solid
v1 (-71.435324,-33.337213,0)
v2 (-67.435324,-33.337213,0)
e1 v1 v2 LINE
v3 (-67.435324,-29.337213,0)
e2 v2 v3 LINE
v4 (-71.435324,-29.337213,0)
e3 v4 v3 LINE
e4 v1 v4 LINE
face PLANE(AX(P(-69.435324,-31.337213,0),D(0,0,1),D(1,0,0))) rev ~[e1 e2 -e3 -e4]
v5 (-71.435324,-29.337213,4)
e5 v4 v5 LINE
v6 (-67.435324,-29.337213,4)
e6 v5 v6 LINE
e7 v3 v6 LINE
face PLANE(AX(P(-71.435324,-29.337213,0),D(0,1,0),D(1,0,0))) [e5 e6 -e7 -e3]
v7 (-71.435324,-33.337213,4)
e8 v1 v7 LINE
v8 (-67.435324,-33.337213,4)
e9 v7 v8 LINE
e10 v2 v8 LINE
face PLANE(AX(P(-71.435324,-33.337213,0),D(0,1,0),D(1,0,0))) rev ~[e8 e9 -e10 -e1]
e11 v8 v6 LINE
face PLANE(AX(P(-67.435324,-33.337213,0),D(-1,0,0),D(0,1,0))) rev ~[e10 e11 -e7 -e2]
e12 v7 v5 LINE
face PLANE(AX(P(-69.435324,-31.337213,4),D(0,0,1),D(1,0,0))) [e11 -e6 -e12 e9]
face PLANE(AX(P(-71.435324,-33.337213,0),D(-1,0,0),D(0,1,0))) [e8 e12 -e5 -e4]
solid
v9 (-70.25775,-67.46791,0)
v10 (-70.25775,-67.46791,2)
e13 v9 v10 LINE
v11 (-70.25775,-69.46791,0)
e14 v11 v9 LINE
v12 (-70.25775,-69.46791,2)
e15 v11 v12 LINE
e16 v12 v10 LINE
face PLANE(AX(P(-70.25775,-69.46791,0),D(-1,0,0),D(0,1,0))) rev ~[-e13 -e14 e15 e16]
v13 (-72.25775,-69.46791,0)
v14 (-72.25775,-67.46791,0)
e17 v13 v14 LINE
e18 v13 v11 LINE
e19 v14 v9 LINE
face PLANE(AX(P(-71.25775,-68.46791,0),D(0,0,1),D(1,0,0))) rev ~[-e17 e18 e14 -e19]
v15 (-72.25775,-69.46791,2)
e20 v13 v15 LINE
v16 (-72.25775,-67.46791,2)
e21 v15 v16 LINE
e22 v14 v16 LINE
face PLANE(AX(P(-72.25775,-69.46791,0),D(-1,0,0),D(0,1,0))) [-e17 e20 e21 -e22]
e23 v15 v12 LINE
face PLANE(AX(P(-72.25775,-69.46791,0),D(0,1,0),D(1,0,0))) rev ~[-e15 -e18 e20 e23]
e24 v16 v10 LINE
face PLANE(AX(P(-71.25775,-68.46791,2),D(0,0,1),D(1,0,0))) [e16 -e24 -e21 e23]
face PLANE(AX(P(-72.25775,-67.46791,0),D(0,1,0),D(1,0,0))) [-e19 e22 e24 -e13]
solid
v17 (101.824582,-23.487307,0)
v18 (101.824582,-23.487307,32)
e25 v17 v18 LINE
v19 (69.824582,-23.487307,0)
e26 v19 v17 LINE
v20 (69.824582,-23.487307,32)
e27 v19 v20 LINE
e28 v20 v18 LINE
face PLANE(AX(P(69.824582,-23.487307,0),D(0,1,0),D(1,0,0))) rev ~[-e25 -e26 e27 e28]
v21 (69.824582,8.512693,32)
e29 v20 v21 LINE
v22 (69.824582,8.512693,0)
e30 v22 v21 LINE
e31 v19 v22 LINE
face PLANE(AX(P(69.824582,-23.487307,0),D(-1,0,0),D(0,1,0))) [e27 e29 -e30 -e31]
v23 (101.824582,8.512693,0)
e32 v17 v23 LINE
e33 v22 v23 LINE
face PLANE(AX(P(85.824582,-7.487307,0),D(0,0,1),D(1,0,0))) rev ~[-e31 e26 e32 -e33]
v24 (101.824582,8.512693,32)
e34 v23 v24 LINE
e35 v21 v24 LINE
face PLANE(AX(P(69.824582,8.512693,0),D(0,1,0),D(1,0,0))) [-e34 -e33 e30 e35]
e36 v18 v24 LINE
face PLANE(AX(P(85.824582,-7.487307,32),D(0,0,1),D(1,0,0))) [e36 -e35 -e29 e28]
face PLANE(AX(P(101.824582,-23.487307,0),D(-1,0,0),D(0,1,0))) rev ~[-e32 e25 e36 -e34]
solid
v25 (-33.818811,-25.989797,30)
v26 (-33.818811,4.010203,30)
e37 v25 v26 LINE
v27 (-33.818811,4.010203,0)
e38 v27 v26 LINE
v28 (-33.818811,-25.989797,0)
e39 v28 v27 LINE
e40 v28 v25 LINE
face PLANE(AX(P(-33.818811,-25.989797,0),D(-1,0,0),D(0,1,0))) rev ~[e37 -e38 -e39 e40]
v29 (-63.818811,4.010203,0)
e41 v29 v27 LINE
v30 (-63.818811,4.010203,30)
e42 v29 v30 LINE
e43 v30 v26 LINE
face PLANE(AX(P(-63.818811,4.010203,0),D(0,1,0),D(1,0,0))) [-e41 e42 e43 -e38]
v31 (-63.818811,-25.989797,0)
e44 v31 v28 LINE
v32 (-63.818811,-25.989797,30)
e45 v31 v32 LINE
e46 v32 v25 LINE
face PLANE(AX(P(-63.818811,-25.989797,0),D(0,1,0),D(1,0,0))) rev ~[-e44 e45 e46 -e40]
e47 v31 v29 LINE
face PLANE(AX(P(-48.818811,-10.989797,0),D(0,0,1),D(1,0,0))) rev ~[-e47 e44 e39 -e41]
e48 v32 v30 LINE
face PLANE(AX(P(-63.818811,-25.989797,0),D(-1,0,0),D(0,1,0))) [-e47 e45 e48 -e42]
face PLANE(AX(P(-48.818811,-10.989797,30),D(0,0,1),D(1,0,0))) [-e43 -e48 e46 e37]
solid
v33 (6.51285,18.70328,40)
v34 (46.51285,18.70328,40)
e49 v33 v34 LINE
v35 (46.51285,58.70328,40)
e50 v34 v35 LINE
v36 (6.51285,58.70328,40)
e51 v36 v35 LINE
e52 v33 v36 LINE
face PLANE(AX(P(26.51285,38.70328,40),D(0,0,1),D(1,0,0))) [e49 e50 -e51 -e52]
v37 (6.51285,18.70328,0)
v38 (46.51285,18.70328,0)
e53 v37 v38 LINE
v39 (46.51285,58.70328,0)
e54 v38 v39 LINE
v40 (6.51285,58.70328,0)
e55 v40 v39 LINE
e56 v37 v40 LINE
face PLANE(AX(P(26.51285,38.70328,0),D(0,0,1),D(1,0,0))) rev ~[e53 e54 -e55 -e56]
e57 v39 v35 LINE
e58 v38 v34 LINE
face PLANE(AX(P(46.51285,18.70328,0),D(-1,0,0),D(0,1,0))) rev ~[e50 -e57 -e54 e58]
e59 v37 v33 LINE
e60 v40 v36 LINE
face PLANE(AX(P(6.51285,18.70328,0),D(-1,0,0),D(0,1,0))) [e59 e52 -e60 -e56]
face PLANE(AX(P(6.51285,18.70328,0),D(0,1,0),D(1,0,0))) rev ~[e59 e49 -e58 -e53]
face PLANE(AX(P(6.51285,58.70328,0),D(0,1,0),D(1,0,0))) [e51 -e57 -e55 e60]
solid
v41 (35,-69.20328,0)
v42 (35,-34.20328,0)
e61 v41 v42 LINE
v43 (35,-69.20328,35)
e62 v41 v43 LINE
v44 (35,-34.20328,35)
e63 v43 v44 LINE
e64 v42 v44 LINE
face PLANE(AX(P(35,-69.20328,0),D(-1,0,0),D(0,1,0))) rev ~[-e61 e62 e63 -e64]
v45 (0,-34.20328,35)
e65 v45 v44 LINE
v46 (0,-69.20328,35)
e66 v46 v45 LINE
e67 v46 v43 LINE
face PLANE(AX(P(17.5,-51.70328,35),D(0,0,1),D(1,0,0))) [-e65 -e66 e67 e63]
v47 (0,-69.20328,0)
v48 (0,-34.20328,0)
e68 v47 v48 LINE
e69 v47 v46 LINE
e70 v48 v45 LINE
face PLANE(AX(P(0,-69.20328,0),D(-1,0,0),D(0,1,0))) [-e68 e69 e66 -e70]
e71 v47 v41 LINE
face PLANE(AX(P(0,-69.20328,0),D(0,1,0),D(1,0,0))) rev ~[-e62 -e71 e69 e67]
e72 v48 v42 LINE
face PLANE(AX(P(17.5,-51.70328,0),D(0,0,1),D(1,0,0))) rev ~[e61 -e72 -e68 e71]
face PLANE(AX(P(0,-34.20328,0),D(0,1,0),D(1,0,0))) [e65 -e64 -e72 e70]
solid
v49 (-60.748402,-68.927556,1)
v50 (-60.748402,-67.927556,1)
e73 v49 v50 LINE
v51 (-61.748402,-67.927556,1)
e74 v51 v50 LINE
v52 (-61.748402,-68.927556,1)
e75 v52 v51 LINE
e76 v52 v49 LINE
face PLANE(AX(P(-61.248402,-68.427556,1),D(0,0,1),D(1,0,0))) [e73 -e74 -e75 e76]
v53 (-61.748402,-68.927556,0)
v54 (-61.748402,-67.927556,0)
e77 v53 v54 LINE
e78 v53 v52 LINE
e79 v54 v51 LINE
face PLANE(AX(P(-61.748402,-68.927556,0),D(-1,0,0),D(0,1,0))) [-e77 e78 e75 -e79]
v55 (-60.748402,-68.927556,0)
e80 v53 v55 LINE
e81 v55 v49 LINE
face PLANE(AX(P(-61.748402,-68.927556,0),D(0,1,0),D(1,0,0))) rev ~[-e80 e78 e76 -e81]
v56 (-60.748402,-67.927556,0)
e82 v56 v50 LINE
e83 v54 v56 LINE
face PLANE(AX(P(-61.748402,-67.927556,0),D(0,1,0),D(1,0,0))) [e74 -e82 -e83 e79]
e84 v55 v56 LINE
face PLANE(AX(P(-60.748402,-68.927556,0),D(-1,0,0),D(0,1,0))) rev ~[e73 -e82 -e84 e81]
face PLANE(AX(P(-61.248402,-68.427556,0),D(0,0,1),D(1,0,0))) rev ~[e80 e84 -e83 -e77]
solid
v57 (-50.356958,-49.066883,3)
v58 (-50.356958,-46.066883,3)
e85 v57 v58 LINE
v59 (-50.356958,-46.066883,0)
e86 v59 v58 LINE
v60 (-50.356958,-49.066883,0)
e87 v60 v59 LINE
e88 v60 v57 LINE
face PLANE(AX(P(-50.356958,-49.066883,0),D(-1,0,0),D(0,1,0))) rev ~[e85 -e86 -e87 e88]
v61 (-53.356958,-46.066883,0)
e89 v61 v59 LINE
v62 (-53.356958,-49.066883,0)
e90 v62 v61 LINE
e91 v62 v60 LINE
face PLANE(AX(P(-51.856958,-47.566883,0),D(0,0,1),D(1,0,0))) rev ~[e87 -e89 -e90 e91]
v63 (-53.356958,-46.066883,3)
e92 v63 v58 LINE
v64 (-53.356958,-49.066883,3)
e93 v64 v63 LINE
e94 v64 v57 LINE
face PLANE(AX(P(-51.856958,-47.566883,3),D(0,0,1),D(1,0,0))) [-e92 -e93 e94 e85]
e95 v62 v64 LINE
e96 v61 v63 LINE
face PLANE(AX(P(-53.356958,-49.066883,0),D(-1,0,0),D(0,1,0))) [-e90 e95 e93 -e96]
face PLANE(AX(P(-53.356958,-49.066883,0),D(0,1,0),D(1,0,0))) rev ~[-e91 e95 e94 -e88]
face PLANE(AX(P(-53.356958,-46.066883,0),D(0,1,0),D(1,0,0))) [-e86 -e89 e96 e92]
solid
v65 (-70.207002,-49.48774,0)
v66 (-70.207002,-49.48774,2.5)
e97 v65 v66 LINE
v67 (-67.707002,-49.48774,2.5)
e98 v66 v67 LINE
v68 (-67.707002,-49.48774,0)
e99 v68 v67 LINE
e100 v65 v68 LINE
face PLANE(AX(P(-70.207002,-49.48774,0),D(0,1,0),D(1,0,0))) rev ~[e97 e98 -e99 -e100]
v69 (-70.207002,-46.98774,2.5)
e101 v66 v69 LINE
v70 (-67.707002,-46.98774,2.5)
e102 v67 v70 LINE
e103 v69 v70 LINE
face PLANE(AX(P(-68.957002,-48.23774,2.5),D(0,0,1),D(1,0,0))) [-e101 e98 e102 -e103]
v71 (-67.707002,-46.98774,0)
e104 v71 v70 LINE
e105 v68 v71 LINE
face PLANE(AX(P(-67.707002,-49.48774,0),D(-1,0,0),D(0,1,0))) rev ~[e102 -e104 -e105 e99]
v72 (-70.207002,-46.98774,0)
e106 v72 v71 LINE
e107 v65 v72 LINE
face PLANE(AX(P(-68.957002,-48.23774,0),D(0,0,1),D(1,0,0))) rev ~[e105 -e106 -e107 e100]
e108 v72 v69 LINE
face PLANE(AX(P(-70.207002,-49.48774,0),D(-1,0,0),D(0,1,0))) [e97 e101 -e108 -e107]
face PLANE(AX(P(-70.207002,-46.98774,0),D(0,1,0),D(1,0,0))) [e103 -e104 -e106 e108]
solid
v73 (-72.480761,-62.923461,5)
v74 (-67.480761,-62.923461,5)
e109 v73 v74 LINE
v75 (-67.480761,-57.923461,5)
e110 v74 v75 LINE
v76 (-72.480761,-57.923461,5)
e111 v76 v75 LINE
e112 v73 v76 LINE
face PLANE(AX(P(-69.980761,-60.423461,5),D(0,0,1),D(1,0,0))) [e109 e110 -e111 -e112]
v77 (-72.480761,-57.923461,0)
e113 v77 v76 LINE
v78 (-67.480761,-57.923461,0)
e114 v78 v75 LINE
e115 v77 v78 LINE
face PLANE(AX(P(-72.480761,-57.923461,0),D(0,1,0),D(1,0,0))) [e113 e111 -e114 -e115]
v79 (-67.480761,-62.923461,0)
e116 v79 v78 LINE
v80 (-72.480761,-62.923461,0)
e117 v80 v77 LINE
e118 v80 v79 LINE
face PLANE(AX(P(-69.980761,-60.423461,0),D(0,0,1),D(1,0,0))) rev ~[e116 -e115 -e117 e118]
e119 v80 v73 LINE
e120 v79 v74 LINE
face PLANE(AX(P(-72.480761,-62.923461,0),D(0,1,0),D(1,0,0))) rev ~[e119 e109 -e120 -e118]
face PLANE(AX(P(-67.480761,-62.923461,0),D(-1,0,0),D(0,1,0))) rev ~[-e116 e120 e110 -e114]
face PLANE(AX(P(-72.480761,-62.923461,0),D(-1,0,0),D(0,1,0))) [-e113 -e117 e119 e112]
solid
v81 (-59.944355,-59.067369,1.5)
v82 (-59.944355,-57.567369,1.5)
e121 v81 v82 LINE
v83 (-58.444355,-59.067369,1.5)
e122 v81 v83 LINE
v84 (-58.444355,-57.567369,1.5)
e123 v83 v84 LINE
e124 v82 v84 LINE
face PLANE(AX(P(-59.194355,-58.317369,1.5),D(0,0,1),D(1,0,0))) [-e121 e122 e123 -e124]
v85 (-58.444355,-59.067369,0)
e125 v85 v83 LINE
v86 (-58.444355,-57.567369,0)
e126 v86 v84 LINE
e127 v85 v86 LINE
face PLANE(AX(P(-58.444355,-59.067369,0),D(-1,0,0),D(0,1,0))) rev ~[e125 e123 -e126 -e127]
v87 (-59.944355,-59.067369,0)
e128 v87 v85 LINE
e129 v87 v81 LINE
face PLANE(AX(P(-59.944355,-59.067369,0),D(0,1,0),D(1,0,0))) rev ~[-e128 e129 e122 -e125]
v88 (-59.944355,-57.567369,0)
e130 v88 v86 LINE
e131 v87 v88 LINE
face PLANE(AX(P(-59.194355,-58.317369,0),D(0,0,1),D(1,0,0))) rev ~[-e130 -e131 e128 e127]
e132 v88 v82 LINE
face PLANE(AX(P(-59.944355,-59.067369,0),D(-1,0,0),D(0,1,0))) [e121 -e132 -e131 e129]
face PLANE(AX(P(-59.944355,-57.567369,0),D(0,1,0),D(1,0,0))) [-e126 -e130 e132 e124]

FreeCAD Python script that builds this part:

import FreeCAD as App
import Part
import Sketcher

V = App.Vector
Q = App.Units.Quantity


def add_polygon(sketch, points):
    """Adds a closed chain of lines whose ends are joined by coincident constraints."""
    first, n = sketch.GeometryCount, len(points)
    for a, b in zip(points, points[1:] + points[:1]):
        sketch.addGeometry(Part.LineSegment(App.Vector(*a, 0), App.Vector(*b, 0)), False)
    for i in range(n):
        sketch.addConstraint(Sketcher.Constraint("Coincident", first + i, 2, first + (i + 1) % n, 1))

doc = App.newDocument("Part")
params = doc.addObject("Spreadsheet::Sheet", "Params")
for row, (alias, value) in enumerate([
    ("sketch1_width", "2 mm"),
    ("pad1_length", "2 mm"),
    ("sketch2_width", "5 mm"),
    ("pad2_length", "5 mm"),
    ("sketch3_width", "2.5 mm"),
    ("pad3_length", "2.5 mm"),
    ("sketch4_width", "4 mm"),
    ("pad4_length", "4 mm"),
    ("sketch5_width", "3 mm"),
    ("pad5_length", "3 mm"),
    ("sketch6_width", "1.5 mm"),
    ("pad6_length", "1.5 mm"),
    ("sketch7_width", "1 mm"),
    ("pad7_length", "1 mm"),
    ("sketch8_width", "30 mm"),
    ("pad8_length", "30 mm"),
    ("sketch9_width", "40 mm"),
    ("pad9_length", "40 mm"),
    ("sketch10_width", "35 mm"),
    ("pad10_length", "35 mm"),
    ("sketch11_width", "32 mm"),
    ("pad11_length", "32 mm"),
], start=1):
    params.set(f"A{row}", alias)
    params.set(f"B{row}", "=" + value)
    params.setAlias(f"B{row}", alias)

body = doc.addObject("PartDesign::Body", "Body")

sketch1 = body.newObject("Sketcher::SketchObject", "Sketch")
sketch1.AttachmentSupport = (doc.getObject("XY_Plane"), [""])
sketch1.MapMode = "FlatFace"
add_polygon(sketch1, [(-72.3, -67.5), (-72.3, -69.5), (-70.3, -69.5), (-70.3, -67.5)])
sketch1.addConstraint([
    Sketcher.Constraint("Vertical", 0),
    Sketcher.Constraint("Horizontal", 1),
    Sketcher.Constraint("Vertical", 2),
    Sketcher.Constraint("Horizontal", 3),
    Sketcher.Constraint("Equal", 3, 0),
    Sketcher.Constraint("DistanceX", 1, 1, 1, 2, Q("2 mm")),
    Sketcher.Constraint("DistanceX", 0, 2, -1, 1, Q("72.25775 mm")),
    Sketcher.Constraint("DistanceY", 0, 2, -1, 1, Q("69.46791 mm")),
])
sketch1.setExpression("Constraints[9]", "Params.sketch1_width")
pad1 = body.newObject("PartDesign::Pad", "Pad")
pad1.Profile = sketch1
pad1.setExpression("Length", "Params.pad1_length")
body2 = doc.addObject("PartDesign::Body", "Body001")

sketch2 = body2.newObject("Sketcher::SketchObject", "Sketch001")
sketch2.AttachmentSupport = (doc.getObject("XY_Plane001"), [""])
sketch2.MapMode = "FlatFace"
add_polygon(sketch2, [(-72, -58), (-72, -63), (-67, -63), (-67, -58)])
sketch2.addConstraint([
    Sketcher.Constraint("Vertical", 0),
    Sketcher.Constraint("Horizontal", 1),
    Sketcher.Constraint("Vertical", 2),
    Sketcher.Constraint("Horizontal", 3),
    Sketcher.Constraint("Equal", 3, 0),
    Sketcher.Constraint("DistanceX", 1, 1, 1, 2, Q("5 mm")),
    Sketcher.Constraint("DistanceX", 0, 2, -1, 1, Q("72.480761 mm")),
    Sketcher.Constraint("DistanceY", 0, 2, -1, 1, Q("62.923461 mm")),
])
sketch2.setExpression("Constraints[9]", "Params.sketch2_width")
pad2 = body2.newObject("PartDesign::Pad", "Pad001")
pad2.Profile = sketch2
pad2.setExpression("Length", "Params.pad2_length")
body3 = doc.addObject("PartDesign::Body", "Body002")

sketch3 = body3.newObject("Sketcher::SketchObject", "Sketch002")
sketch3.AttachmentSupport = (doc.getObject("XY_Plane002"), [""])
sketch3.MapMode = "FlatFace"
add_polygon(sketch3, [(-70.2, -47), (-70.2, -49.5), (-67.7, -49.5), (-67.7, -47)])
sketch3.addConstraint([
    Sketcher.Constraint("Vertical", 0),
    Sketcher.Constraint("Horizontal", 1),
    Sketcher.Constraint("Vertical", 2),
    Sketcher.Constraint("Horizontal", 3),
    Sketcher.Constraint("Equal", 3, 0),
    Sketcher.Constraint("DistanceX", 1, 1, 1, 2, Q("2.5 mm")),
    Sketcher.Constraint("DistanceY", 0, 2, -1, 1, Q("49.48774 mm")),
    Sketcher.Constraint("DistanceX", 0, 2, -1, 1, Q("70.207002 mm")),
])
sketch3.setExpression("Constraints[9]", "Params.sketch3_width")
pad3 = body3.newObject("PartDesign::Pad", "Pad002")
pad3.Profile = sketch3
pad3.setExpression("Length", "Params.pad3_length")
body4 = doc.addObject("PartDesign::Body", "Body003")

sketch4 = body4.newObject("Sketcher::SketchObject", "Sketch003")
sketch4.AttachmentSupport = (doc.getObject("XY_Plane003"), [""])
sketch4.MapMode = "FlatFace"
add_polygon(sketch4, [(-71.4, -29.3), (-71.4, -33.3), (-67.4, -33.3), (-67.4, -29.3)])
sketch4.addConstraint([
    Sketcher.Constraint("Vertical", 0),
    Sketcher.Constraint("Horizontal", 1),
    Sketcher.Constraint("Vertical", 2),
    Sketcher.Constraint("Horizontal", 3),
    Sketcher.Constraint("Equal", 3, 0),
    Sketcher.Constraint("DistanceX", 1, 1, 1, 2, Q("4 mm")),
    Sketcher.Constraint("DistanceX", 0, 2, -1, 1, Q("71.435324 mm")),
    Sketcher.Constraint("DistanceY", 0, 2, -1, 1, Q("33.337213 mm")),
])
sketch4.setExpression("Constraints[9]", "Params.sketch4_width")
pad4 = body4.newObject("PartDesign::Pad", "Pad003")
pad4.Profile = sketch4
pad4.setExpression("Length", "Params.pad4_length")
body5 = doc.addObject("PartDesign::Body", "Body004")

sketch5 = body5.newObject("Sketcher::SketchObject", "Sketch004")
sketch5.AttachmentSupport = (doc.getObject("XY_Plane004"), [""])
sketch5.MapMode = "FlatFace"
add_polygon(sketch5, [(-53.4, -46.1), (-53.4, -49.1), (-50.4, -49.1), (-50.4, -46.1)])
sketch5.addConstraint([
    Sketcher.Constraint("Vertical", 0),
    Sketcher.Constraint("Horizontal", 1),
    Sketcher.Constraint("Vertical", 2),
    Sketcher.Constraint("Horizontal", 3),
    Sketcher.Constraint("Equal", 3, 0),
    Sketcher.Constraint("DistanceX", 1, 1, 1, 2, Q("3 mm")),
    Sketcher.Constraint("DistanceX", 0, 2, -1, 1, Q("53.356958 mm")),
    Sketcher.Constraint("DistanceY", 0, 2, -1, 1, Q("49.066883 mm")),
])
sketch5.setExpression("Constraints[9]", "Params.sketch5_width")
pad5 = body5.newObject("PartDesign::Pad", "Pad004")
pad5.Profile = sketch5
pad5.setExpression("Length", "Params.pad5_length")
body6 = doc.addObject("PartDesign::Body", "Body005")

sketch6 = body6.newObject("Sketcher::SketchObject", "Sketch005")
sketch6.AttachmentSupport = (doc.getObject("XY_Plane005"), [""])
sketch6.MapMode = "FlatFace"
add_polygon(sketch6, [(-59.9, -57.6), (-59.9, -59.1), (-58.4, -59.1), (-58.4, -57.6)])
sketch6.addConstraint([
    Sketcher.Constraint("Vertical", 0),
    Sketcher.Constraint("Horizontal", 1),
    Sketcher.Constraint("Vertical", 2),
    Sketcher.Constraint("Horizontal", 3),
    Sketcher.Constraint("Equal", 3, 0),
    Sketcher.Constraint("DistanceX", 1, 1, 1, 2, Q("1.5 mm")),
    Sketcher.Constraint("DistanceY", 0, 2, -1, 1, Q("59.067369 mm")),
    Sketcher.Constraint("DistanceX", 0, 2, -1, 1, Q("59.944355 mm")),
])
sketch6.setExpression("Constraints[9]", "Params.sketch6_width")
pad6 = body6.newObject("PartDesign::Pad", "Pad005")
pad6.Profile = sketch6
pad6.setExpression("Length", "Params.pad6_length")
body7 = doc.addObject("PartDesign::Body", "Body006")

sketch7 = body7.newObject("Sketcher::SketchObject", "Sketch006")
sketch7.AttachmentSupport = (doc.getObject("XY_Plane006"), [""])
sketch7.MapMode = "FlatFace"
add_polygon(sketch7, [(-61.7, -67.9), (-61.7, -68.9), (-60.7, -68.9), (-60.7, -67.9)])
sketch7.addConstraint([
    Sketcher.Constraint("Vertical", 0),
    Sketcher.Constraint("Horizontal", 1),
    Sketcher.Constraint("Vertical", 2),
    Sketcher.Constraint("Horizontal", 3),
    Sketcher.Constraint("Equal", 3, 0),
    Sketcher.Constraint("DistanceX", 1, 1, 1, 2, Q("1 mm")),
    Sketcher.Constraint("DistanceX", 0, 2, -1, 1, Q("61.748402 mm")),
    Sketcher.Constraint("DistanceY", 0, 2, -1, 1, Q("68.927556 mm")),
])
sketch7.setExpression("Constraints[9]", "Params.sketch7_width")
pad7 = body7.newObject("PartDesign::Pad", "Pad006")
pad7.Profile = sketch7
pad7.setExpression("Length", "Params.pad7_length")
body8 = doc.addObject("PartDesign::Body", "Body007")

sketch8 = body8.newObject("Sketcher::SketchObject", "Sketch007")
sketch8.AttachmentSupport = (doc.getObject("XY_Plane007"), [""])
sketch8.MapMode = "FlatFace"
add_polygon(sketch8, [(-64, 4), (-64, -26), (-34, -26), (-34, 4)])
sketch8.addConstraint([
    Sketcher.Constraint("Vertical", 0),
    Sketcher.Constraint("Horizontal", 1),
    Sketcher.Constraint("Vertical", 2),
    Sketcher.Constraint("Horizontal", 3),
    Sketcher.Constraint("Equal", 3, 0),
    Sketcher.Constraint("DistanceX", 1, 1, 1, 2, Q("30 mm")),
    Sketcher.Constraint("DistanceX", 0, 2, -1, 1, Q("63.818811 mm")),
    Sketcher.Constraint("DistanceY", 0, 2, -1, 1, Q("25.989797 mm")),
])
sketch8.setExpression("Constraints[9]", "Params.sketch8_width")
pad8 = body8.newObject("PartDesign::Pad", "Pad007")
pad8.Profile = sketch8
pad8.setExpression("Length", "Params.pad8_length")
body9 = doc.addObject("PartDesign::Body", "Body008")

sketch9 = body9.newObject("Sketcher::SketchObject", "Sketch008")
sketch9.AttachmentSupport = (doc.getObject("XY_Plane008"), [""])
sketch9.MapMode = "FlatFace"
add_polygon(sketch9, [(7, 59), (7, 19), (47, 19), (47, 59)])
sketch9.addConstraint([
    Sketcher.Constraint("Vertical", 0),
    Sketcher.Constraint("Horizontal", 1),
    Sketcher.Constraint("Vertical", 2),
    Sketcher.Constraint("Horizontal", 3),
    Sketcher.Constraint("Equal", 3, 0),
    Sketcher.Constraint("DistanceX", 1, 1, 1, 2, Q("40 mm")),
    Sketcher.Constraint("DistanceX", -1, 1, 0, 2, Q("6.51285 mm")),
    Sketcher.Constraint("DistanceY", -1, 1, 0, 2, Q("18.70328 mm")),
])
sketch9.setExpression("Constraints[9]", "Params.sketch9_width")
pad9 = body9.newObject("PartDesign::Pad", "Pad008")
pad9.Profile = sketch9
pad9.setExpression("Length", "Params.pad9_length")
body10 = doc.addObject("PartDesign::Body", "Body009")

sketch10 = body10.newObject("Sketcher::SketchObject", "Sketch009")
sketch10.AttachmentSupport = (doc.getObject("XY_Plane009"), [""])
sketch10.MapMode = "FlatFace"
add_polygon(sketch10, [(0, -34), (0, -69), (35, -69), (35, -34)])
sketch10.addConstraint([
    Sketcher.Constraint("Vertical", 0),
    Sketcher.Constraint("Horizontal", 1),
    Sketcher.Constraint("Vertical", 2),
    Sketcher.Constraint("Horizontal", 3),
    Sketcher.Constraint("PointOnObject", 0, 2, -2),
    Sketcher.Constraint("Equal", 3, 0),
    Sketcher.Constraint("DistanceX", 1, 1, 1, 2, Q("35 mm")),
    Sketcher.Constraint("DistanceY", 0, 2, -1, 1, Q("69.20328 mm")),
])
sketch10.setExpression("Constraints[10]", "Params.sketch10_width")
pad10 = body10.newObject("PartDesign::Pad", "Pad009")
pad10.Profile = sketch10
pad10.setExpression("Length", "Params.pad10_length")
body11 = doc.addObject("PartDesign::Body", "Body010")

sketch11 = body11.newObject("Sketcher::SketchObject", "Sketch010")
sketch11.AttachmentSupport = (doc.getObject("XY_Plane010"), [""])
sketch11.MapMode = "FlatFace"
add_polygon(sketch11, [(70, 9), (70, -23), (102, -23), (102, 9)])
sketch11.addConstraint([
    Sketcher.Constraint("Vertical", 0),
    Sketcher.Constraint("Horizontal", 1),
    Sketcher.Constraint("Vertical", 2),
    Sketcher.Constraint("Horizontal", 3),
    Sketcher.Constraint("Equal", 3, 0),
    Sketcher.Constraint("DistanceX", 1, 1, 1, 2, Q("32 mm")),
    Sketcher.Constraint("DistanceX", -1, 1, 0, 2, Q("69.824582 mm")),
    Sketcher.Constraint("DistanceY", 0, 2, -1, 1, Q("23.487307 mm")),
])
sketch11.setExpression("Constraints[9]", "Params.sketch11_width")
pad11 = body11.newObject("PartDesign::Pad", "Pad010")
pad11.Profile = sketch11
pad11.setExpression("Length", "Params.pad11_length")

doc.recompute()
